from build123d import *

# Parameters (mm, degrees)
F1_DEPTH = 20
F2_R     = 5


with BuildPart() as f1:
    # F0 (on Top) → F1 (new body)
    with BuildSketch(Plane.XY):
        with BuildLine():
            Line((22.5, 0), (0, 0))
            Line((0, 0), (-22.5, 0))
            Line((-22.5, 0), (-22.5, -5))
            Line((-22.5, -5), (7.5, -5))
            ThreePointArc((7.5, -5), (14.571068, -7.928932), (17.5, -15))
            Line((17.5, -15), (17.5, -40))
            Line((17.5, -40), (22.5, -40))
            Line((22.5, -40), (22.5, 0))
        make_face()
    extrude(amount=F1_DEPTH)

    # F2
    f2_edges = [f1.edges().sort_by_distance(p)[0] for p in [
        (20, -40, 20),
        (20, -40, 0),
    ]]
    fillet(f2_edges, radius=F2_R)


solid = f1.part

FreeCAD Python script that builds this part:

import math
import FreeCAD as App
import Part
import Sketcher
Q = App.Units.Quantity


def edges_at(feature, points):
    """Names of the edges that pass closest to the given points."""
    edges = feature.Shape.Edges
    near = lambda p: min(range(len(edges)), key=lambda i: edges[i].distToShape(Part.Vertex(*p))[0])
    return sorted({f"Edge{near(p) + 1}" for p in points})

doc = App.newDocument("Part")
body = doc.addObject("PartDesign::Body", "Body")

# Sketch on XY plane
sketch1 = body.newObject("Sketcher::SketchObject", "Sketch")
sketch1.AttachmentSupport = (doc.getObject("XY_Plane"), [""])
sketch1.MapMode = "FlatFace"
sketch1.addGeometry([
    Part.LineSegment(App.Vector(22, 0, 0), App.Vector(-22, 0, 0)),  # 0
    Part.LineSegment(App.Vector(-22, 0, 0), App.Vector(-22, -5, 0)),  # 1
    Part.LineSegment(App.Vector(-22, -5, 0), App.Vector(8, -5, 0)),  # 2
    Part.ArcOfCircle(Part.Circle(App.Vector(8, -15, 0), App.Vector(0, 0, 1), 10), math.radians(0), math.radians(90)),  # 3
    Part.LineSegment(App.Vector(18, -15, 0), App.Vector(18, -40, 0)),  # 4
    Part.LineSegment(App.Vector(18, -40, 0), App.Vector(22, -40, 0)),  # 5
    Part.LineSegment(App.Vector(22, -40, 0), App.Vector(22, 0, 0)),  # 6
], False)
sketch1.addConstraint([
    Sketcher.Constraint("Coincident", 0, 2, 1, 1),
    Sketcher.Constraint("Coincident", 1, 2, 2, 1),
    Sketcher.Constraint("Tangent", 2, 2, 3, 2),
    Sketcher.Constraint("Tangent", 3, 1, 4, 1),
    Sketcher.Constraint("Coincident", 4, 2, 5, 1),
    Sketcher.Constraint("Coincident", 5, 2, 6, 1),
    Sketcher.Constraint("Coincident", 6, 2, 0, 1),
    Sketcher.Constraint("Horizontal", 0),
    Sketcher.Constraint("Vertical", 1),
    Sketcher.Constraint("Horizontal", 2),
    Sketcher.Constraint("Vertical", 4),
    Sketcher.Constraint("Horizontal", 5),
    Sketcher.Constraint("Vertical", 6),
    Sketcher.Constraint("Symmetric", 0, 2, 6, 2, -1, 1),
    Sketcher.Constraint("Equal", 5, 1),
    Sketcher.Constraint("Radius", 3, Q("9.999999 mm")),
    Sketcher.Constraint("DistanceX", 0, 2, 0, 1, Q("45 mm")),
    Sketcher.Constraint("DistanceX", 2, 1, 2, 2, Q("30 mm")),
    Sketcher.Constraint("DistanceY", 4, 2, 4, 1, Q("25 mm")),
])
pad1 = body.newObject("PartDesign::Pad", "Pad")
pad1.Profile = sketch1
pad1.Length = 20
doc.recompute()

fillet = body.newObject("PartDesign::Fillet", "Fillet")
fillet.Base = (pad1, edges_at(pad1, [(20, -40, 20), (20, -40, 0)]))
fillet.Radius = 5

doc.recompute()
